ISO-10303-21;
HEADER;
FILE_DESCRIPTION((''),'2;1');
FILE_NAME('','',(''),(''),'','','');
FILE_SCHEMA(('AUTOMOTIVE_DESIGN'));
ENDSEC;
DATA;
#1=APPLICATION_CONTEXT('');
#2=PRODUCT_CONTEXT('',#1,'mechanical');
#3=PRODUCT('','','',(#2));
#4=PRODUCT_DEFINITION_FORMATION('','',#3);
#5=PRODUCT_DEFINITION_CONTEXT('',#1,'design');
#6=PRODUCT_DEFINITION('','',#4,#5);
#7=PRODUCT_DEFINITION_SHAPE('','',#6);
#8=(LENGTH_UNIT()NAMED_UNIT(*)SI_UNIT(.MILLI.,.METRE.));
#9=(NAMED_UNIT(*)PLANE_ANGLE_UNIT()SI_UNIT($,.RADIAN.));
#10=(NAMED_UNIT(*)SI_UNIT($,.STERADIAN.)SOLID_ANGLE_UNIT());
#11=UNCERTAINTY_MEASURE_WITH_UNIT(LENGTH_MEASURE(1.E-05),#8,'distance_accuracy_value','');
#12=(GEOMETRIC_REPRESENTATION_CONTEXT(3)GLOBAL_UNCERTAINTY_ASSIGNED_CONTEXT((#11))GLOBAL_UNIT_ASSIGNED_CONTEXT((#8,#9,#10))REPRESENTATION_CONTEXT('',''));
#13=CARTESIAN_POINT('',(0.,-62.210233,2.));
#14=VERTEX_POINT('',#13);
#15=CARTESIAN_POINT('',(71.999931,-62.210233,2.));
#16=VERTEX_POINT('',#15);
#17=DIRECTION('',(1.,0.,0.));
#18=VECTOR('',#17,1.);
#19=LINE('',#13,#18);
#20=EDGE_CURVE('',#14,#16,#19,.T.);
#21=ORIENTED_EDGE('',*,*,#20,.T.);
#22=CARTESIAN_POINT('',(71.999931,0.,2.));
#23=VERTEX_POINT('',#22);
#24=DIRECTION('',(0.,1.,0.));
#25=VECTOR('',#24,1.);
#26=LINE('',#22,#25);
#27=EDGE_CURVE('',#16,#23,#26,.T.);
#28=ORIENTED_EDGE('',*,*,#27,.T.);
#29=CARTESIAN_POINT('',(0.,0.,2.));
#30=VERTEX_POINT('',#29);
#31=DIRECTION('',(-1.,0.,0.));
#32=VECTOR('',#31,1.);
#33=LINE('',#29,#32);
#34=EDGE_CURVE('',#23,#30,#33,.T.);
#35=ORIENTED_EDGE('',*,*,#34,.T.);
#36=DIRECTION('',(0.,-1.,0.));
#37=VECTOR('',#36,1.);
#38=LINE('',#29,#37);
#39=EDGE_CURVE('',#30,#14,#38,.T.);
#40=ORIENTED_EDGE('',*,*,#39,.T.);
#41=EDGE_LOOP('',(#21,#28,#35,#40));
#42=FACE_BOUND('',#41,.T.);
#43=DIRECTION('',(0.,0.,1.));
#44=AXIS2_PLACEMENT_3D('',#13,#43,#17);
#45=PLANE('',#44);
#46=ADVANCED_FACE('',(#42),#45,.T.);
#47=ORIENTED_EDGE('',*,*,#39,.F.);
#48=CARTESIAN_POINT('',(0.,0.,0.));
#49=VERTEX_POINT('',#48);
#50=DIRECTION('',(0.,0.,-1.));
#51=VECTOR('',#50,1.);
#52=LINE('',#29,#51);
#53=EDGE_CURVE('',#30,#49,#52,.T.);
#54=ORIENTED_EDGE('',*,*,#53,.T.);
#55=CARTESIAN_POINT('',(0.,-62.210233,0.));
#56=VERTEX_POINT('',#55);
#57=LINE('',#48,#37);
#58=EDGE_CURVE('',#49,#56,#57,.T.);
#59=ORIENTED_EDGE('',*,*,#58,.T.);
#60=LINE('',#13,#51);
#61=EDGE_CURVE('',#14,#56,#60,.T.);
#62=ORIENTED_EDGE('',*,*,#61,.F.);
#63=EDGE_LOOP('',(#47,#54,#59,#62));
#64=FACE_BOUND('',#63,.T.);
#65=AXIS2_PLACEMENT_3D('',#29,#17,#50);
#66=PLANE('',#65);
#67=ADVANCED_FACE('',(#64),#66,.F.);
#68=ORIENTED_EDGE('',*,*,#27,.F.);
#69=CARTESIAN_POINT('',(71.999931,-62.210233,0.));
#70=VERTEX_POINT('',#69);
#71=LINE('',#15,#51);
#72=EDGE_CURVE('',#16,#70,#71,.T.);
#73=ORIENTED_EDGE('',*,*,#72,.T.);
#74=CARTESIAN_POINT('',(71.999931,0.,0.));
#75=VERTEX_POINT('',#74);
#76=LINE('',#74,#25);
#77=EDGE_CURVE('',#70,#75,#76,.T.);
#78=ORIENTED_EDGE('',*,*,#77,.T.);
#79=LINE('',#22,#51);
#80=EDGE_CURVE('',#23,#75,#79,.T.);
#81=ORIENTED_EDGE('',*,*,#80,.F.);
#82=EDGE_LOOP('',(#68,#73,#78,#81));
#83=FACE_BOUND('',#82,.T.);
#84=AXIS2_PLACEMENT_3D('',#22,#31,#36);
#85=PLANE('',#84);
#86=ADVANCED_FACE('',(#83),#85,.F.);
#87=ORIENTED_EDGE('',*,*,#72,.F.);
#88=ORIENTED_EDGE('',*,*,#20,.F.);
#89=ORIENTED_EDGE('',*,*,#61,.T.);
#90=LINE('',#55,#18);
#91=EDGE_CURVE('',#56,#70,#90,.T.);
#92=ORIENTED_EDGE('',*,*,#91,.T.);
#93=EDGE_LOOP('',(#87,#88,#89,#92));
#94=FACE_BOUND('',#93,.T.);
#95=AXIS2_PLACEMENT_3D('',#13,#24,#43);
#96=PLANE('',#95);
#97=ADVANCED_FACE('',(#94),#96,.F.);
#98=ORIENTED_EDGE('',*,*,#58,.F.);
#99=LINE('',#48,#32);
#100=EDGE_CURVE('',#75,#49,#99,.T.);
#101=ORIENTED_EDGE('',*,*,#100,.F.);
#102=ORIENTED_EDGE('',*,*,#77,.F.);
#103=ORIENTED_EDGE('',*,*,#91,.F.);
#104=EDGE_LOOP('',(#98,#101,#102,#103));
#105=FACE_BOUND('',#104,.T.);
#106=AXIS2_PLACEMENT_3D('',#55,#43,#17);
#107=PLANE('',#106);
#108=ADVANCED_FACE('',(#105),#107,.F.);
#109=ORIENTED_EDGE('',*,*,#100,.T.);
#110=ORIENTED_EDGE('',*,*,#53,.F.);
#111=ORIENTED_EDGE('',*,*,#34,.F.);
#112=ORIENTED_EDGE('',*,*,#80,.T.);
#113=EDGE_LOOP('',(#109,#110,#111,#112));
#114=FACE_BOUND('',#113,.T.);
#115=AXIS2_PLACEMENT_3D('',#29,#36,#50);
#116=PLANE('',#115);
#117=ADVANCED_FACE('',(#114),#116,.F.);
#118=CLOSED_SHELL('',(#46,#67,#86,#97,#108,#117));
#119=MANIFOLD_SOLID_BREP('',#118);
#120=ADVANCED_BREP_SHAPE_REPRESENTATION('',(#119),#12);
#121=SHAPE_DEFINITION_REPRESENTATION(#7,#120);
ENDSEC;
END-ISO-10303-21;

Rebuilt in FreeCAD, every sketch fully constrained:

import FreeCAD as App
import Part
import Sketcher
Q = App.Units.Quantity


def add_polygon(sketch, points):
    """Adds a closed chain of lines whose ends are joined by coincident constraints."""
    first, n = sketch.GeometryCount, len(points)
    for a, b in zip(points, points[1:] + points[:1]):
        sketch.addGeometry(Part.LineSegment(App.Vector(*a, 0), App.Vector(*b, 0)), False)
    for i in range(n):
        sketch.addConstraint(Sketcher.Constraint("Coincident", first + i, 2, first + (i + 1) % n, 1))

doc = App.newDocument("Part")
body = doc.addObject("PartDesign::Body", "Body")

sketch1 = doc.addObject("Sketcher::SketchObject", "Sketch")
body.addObject(sketch1)
sketch1.AttachmentSupport = (doc.XY_Plane, [""])
sketch1.MapMode = "FlatFace"
add_polygon(sketch1, [(0, 0), (0, -62.210233), (71.999931, -62.210233), (71.999931, 0)])
sketch1.addConstraint([
    Sketcher.Constraint("Vertical", 0),
    Sketcher.Constraint("Horizontal", 1),
    Sketcher.Constraint("Vertical", 2),
    Sketcher.Constraint("Horizontal", 3),
    Sketcher.Constraint("Coincident", 3, 2, -1, 1),
    Sketcher.Constraint("DistanceX", 1, 1, 1, 2, Q("71.999931 mm")),
    Sketcher.Constraint("DistanceY", 0, 2, 0, 1, Q("62.210233 mm")),
])
pad1 = doc.addObject("PartDesign::Pad", "Pad")
body.addObject(pad1)
pad1.Profile = sketch1
pad1.Length = 2

doc.recompute()
